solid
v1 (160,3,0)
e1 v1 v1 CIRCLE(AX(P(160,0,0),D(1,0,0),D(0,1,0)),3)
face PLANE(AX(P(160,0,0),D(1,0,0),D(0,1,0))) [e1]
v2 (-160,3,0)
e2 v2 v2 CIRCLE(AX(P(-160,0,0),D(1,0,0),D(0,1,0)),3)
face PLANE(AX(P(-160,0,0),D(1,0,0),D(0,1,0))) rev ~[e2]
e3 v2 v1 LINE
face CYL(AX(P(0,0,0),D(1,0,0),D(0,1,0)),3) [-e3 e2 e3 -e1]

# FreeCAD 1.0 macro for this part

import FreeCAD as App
import Part
import Sketcher

doc = App.newDocument("Part")
body = doc.addObject("PartDesign::Body", "Body")

# Sketch on YZ plane
sketch1 = body.newObject("Sketcher::SketchObject", "Sketch")
sketch1.AttachmentSupport = (doc.getObject("YZ_Plane"), [""])
sketch1.MapMode = "FlatFace"
sketch1.addGeometry(Part.Circle(App.Vector(0, 0, 0), App.Vector(0, 0, 1), 3), False)
sketch1.addConstraint([
    Sketcher.Constraint("Coincident", 0, 3, -1, 1),
    Sketcher.Constraint("Diameter", 0, 6.0),
])
pad1 = body.newObject("PartDesign::Pad", "Pad")
pad1.Profile = sketch1
pad1.Length = 320
pad1.Midplane = True

doc.recompute()
